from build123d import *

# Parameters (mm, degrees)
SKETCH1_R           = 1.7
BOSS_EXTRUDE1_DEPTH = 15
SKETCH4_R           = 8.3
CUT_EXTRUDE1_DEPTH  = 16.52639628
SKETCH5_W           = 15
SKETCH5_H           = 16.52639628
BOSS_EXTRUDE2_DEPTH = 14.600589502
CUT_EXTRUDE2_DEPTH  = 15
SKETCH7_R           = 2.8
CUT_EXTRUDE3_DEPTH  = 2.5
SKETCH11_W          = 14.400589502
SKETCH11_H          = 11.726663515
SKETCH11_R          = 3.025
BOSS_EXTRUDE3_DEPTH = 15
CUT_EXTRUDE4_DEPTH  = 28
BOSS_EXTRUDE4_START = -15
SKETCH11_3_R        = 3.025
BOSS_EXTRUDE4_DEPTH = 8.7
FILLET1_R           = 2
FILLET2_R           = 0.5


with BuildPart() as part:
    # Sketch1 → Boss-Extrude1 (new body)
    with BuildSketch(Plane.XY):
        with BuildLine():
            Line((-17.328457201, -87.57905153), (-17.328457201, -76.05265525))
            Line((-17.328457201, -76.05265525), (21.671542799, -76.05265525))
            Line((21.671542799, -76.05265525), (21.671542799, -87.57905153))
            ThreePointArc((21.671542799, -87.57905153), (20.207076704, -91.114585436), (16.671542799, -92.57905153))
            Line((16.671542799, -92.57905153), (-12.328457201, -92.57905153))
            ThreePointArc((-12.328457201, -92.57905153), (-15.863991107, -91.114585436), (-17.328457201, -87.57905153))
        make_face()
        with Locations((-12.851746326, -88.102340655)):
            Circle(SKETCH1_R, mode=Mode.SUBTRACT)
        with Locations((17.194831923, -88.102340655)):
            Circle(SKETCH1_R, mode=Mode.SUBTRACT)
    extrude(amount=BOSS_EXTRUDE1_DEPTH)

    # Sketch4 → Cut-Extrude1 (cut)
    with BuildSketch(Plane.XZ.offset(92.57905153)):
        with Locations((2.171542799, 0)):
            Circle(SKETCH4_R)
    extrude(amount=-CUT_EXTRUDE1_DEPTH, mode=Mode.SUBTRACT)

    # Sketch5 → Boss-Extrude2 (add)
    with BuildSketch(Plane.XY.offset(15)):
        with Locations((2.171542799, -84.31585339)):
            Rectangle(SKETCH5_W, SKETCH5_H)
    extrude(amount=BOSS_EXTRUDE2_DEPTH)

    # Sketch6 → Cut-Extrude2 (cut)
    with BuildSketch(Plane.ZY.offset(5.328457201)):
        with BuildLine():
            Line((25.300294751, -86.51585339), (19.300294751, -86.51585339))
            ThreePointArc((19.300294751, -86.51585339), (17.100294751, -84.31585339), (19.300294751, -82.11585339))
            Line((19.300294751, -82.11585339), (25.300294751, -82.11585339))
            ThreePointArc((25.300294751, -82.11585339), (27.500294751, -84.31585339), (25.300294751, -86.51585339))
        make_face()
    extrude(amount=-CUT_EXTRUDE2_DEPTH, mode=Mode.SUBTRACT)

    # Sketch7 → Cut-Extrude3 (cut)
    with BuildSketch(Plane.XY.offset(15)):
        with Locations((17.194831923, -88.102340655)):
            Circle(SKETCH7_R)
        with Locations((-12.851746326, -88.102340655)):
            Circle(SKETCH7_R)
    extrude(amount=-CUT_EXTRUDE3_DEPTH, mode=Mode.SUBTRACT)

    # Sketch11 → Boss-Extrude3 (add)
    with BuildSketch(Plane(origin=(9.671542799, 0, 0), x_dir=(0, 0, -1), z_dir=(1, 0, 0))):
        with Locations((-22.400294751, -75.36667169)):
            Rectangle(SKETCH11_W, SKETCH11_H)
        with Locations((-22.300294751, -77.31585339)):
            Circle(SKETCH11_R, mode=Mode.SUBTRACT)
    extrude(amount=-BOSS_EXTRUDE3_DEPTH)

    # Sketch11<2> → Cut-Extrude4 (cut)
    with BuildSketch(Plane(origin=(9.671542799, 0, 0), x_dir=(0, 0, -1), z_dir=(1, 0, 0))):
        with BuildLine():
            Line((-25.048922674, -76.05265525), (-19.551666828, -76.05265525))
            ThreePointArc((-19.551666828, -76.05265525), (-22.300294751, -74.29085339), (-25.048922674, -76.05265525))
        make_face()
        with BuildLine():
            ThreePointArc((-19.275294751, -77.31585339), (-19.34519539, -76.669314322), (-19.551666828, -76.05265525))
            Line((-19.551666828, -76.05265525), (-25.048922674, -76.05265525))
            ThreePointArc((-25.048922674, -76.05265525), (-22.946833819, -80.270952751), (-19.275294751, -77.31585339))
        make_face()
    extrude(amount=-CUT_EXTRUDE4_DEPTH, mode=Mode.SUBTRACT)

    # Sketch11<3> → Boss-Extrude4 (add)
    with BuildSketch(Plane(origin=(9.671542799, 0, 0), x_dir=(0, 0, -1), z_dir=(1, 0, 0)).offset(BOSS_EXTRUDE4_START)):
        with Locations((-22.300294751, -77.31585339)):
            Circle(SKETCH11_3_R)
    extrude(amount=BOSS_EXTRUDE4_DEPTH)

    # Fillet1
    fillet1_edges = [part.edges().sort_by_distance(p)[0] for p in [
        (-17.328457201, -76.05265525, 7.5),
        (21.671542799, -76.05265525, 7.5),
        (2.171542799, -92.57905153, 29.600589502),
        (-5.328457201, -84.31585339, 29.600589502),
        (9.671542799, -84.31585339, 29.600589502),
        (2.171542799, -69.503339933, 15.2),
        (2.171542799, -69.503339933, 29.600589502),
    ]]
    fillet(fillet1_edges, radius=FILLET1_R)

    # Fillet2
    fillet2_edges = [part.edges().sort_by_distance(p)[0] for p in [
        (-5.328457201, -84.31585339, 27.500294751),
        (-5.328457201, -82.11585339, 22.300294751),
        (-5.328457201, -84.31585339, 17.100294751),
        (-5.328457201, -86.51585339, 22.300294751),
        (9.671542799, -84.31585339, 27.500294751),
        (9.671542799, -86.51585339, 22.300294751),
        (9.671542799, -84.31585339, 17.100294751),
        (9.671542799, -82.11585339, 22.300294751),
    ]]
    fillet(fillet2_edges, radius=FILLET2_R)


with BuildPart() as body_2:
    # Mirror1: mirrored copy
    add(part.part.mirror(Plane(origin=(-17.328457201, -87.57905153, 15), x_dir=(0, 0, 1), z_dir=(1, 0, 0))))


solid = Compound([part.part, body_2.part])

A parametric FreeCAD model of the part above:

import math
import FreeCAD as App
import Part
import Sketcher
Q = App.Units.Quantity


def edges_at(feature, points):
    """Names of the edges that pass closest to the given points."""
    edges = feature.Shape.Edges
    near = lambda p: min(range(len(edges)), key=lambda i: edges[i].distToShape(Part.Vertex(*p))[0])
    return sorted({f"Edge{near(p) + 1}" for p in points})

doc = App.newDocument("Part")
body = doc.addObject("PartDesign::Body", "Body")

sketch1 = body.newObject("Sketcher::SketchObject", "Sketch")
sketch1.AttachmentSupport = (doc.getObject("XY_Plane"), [""])
sketch1.MapMode = "FlatFace"
sketch1.addGeometry([
    Part.LineSegment(App.Vector(-17.3, -76.1, 0), App.Vector(-17.3, -87.6, 0)),
    Part.ArcOfCircle(Part.Circle(App.Vector(-12.3, -87.6, 0), App.Vector(0, 0, 1), 5), math.radians(180), math.radians(270)),
    Part.LineSegment(App.Vector(-12.3, -92.6, 0), App.Vector(16.7, -92.6, 0)),
    Part.ArcOfCircle(Part.Circle(App.Vector(16.7, -87.6, 0), App.Vector(0, 0, 1), 5), math.radians(-90), math.radians(0)),
    Part.LineSegment(App.Vector(21.7, -87.6, 0), App.Vector(21.7, -76.1, 0)),
    Part.LineSegment(App.Vector(21.7, -76.1, 0), App.Vector(-17.3, -76.1, 0)),
    Part.Circle(App.Vector(17.2, -88.1, 0), App.Vector(0, 0, 1), 1.7),
    Part.Circle(App.Vector(-12.9, -88.1, 0), App.Vector(0, 0, 1), 1.7),
], False)
sketch1.addConstraint([
    Sketcher.Constraint("Tangent", 0, 2, 1, 1),
    Sketcher.Constraint("Tangent", 1, 2, 2, 1),
    Sketcher.Constraint("Tangent", 2, 2, 3, 1),
    Sketcher.Constraint("Tangent", 3, 2, 4, 1),
    Sketcher.Constraint("Coincident", 4, 2, 5, 1),
    Sketcher.Constraint("Coincident", 5, 2, 0, 1),
    Sketcher.Constraint("Vertical", 0),
    Sketcher.Constraint("Horizontal", 2),
    Sketcher.Constraint("Vertical", 4),
    Sketcher.Constraint("Horizontal", 5),
    Sketcher.Constraint("Equal", 1, 3),
    Sketcher.Constraint("Equal", 6, 7),
    Sketcher.Constraint("Horizontal", 6, 3, 7, 3),
    Sketcher.Constraint("Radius", 1, Q("5 mm")),
    Sketcher.Constraint("Diameter", 6, Q("3.4 mm")),
    Sketcher.Constraint("DistanceX", 2, 1, 2, 2, Q("29 mm")),
    Sketcher.Constraint("DistanceY", 0, 2, 0, 1, Q("11.526396 mm")),
    Sketcher.Constraint("DistanceY", 1, 3, -1, 1, Q("87.579052 mm")),
    Sketcher.Constraint("DistanceX", -1, 1, 6, 3, Q("17.194832 mm")),
    Sketcher.Constraint("DistanceY", 6, 3, -1, 1, Q("88.102341 mm")),
    Sketcher.Constraint("DistanceX", 3, 3, 6, 3, Q("0.523289 mm")),
    Sketcher.Constraint("DistanceX", 7, 3, 1, 3, Q("0.523289 mm")),
])
pad1 = body.newObject("PartDesign::Pad", "Pad")
pad1.Profile = sketch1
pad1.Length = 15

sketch2 = body.newObject("Sketcher::SketchObject", "Sketch001")
sketch2.AttachmentSupport = (doc.getObject("XZ_Plane"), [""])
sketch2.MapMode = "FlatFace"
sketch2.AttachmentOffset = App.Placement(App.Vector(0, 0, 92.579052), App.Rotation())
sketch2.addGeometry(Part.Circle(App.Vector(2, 0, 0), App.Vector(0, 0, 1), 8), False)
sketch2.addConstraint([
    Sketcher.Constraint("PointOnObject", 0, 3, -1),
    Sketcher.Constraint("Diameter", 0, Q("16.6 mm")),
    Sketcher.Constraint("DistanceX", -1, 1, 0, 3, Q("2.171543 mm")),
])
pocket1 = body.newObject("PartDesign::Pocket", "Pocket")
pocket1.Profile = sketch2
pocket1.Length = 16.526396

sketch3 = body.newObject("Sketcher::SketchObject", "Sketch002")
sketch3.AttachmentSupport = (doc.getObject("XY_Plane"), [""])
sketch3.MapMode = "FlatFace"
sketch3.AttachmentOffset = App.Placement(App.Vector(0, 0, 15), App.Rotation())
sketch3.addGeometry([
    Part.LineSegment(App.Vector(-5, -76, 0), App.Vector(-5, -93, 0)),
    Part.LineSegment(App.Vector(-5, -93, 0), App.Vector(10, -93, 0)),
    Part.LineSegment(App.Vector(10, -93, 0), App.Vector(10, -76, 0)),
    Part.LineSegment(App.Vector(10, -76, 0), App.Vector(-5, -76, 0)),
], False)
sketch3.addConstraint([
    Sketcher.Constraint("Coincident", 0, 2, 1, 1),
    Sketcher.Constraint("Coincident", 1, 2, 2, 1),
    Sketcher.Constraint("Coincident", 2, 2, 3, 1),
    Sketcher.Constraint("Coincident", 3, 2, 0, 1),
    Sketcher.Constraint("Vertical", 0),
    Sketcher.Constraint("Horizontal", 1),
    Sketcher.Constraint("Vertical", 2),
    Sketcher.Constraint("Horizontal", 3),
    Sketcher.Constraint("DistanceX", 1, 1, 1, 2, Q("15 mm")),
    Sketcher.Constraint("DistanceY", 0, 2, 0, 1, Q("16.526396 mm")),
    Sketcher.Constraint("DistanceY", 0, 2, -1, 1, Q("92.579052 mm")),
    Sketcher.Constraint("DistanceX", 0, 2, -1, 1, Q("5.328457 mm")),
])
pad2 = body.newObject("PartDesign::Pad", "Pad001")
pad2.Profile = sketch3
pad2.Length = 14.60059

sketch4 = body.newObject("Sketcher::SketchObject", "Sketch003")
sketch4.AttachmentSupport = (doc.getObject("YZ_Plane"), [""])
sketch4.MapMode = "FlatFace"
sketch4.AttachmentOffset = App.Placement(App.Vector(0, 0, -5.328457), App.Rotation())
sketch4.addGeometry([
    Part.LineSegment(App.Vector(-86.5, 19.3, 0), App.Vector(-86.5, 25.3, 0)),
    Part.ArcOfCircle(Part.Circle(App.Vector(-84.3, 25.3, 0), App.Vector(0, 0, 1), 2.2), math.radians(0), math.radians(180)),
    Part.LineSegment(App.Vector(-82.1, 25.3, 0), App.Vector(-82.1, 19.3, 0)),
    Part.ArcOfCircle(Part.Circle(App.Vector(-84.3, 19.3, 0), App.Vector(0, 0, 1), 2.2), math.radians(180), math.radians(360)),
], False)
sketch4.addConstraint([
    Sketcher.Constraint("Tangent", 0, 2, 1, 2),
    Sketcher.Constraint("Tangent", 1, 1, 2, 1),
    Sketcher.Constraint("Tangent", 2, 2, 3, 2),
    Sketcher.Constraint("Tangent", 3, 1, 0, 1),
    Sketcher.Constraint("Vertical", 0),
    Sketcher.Constraint("Vertical", 2),
    Sketcher.Constraint("Radius", 1, Q("2.2 mm")),
    Sketcher.Constraint("DistanceY", 0, 1, 0, 2, Q("6 mm")),
    Sketcher.Constraint("DistanceX", 1, 3, -1, 1, Q("84.315853 mm")),
    Sketcher.Constraint("DistanceY", -1, 1, 1, 3, Q("25.300295 mm")),
])
pocket2 = body.newObject("PartDesign::Pocket", "Pocket001")
pocket2.Profile = sketch4
pocket2.Length = 15
pocket2.Reversed = True

sketch5 = body.newObject("Sketcher::SketchObject", "Sketch004")
sketch5.AttachmentSupport = (doc.getObject("XY_Plane"), [""])
sketch5.MapMode = "FlatFace"
sketch5.AttachmentOffset = App.Placement(App.Vector(0, 0, 15), App.Rotation())
sketch5.addGeometry([
    Part.Circle(App.Vector(17.2, -88.1, 0), App.Vector(0, 0, 1), 2.8),
    Part.Circle(App.Vector(-12.9, -88.1, 0), App.Vector(0, 0, 1), 2.8),
], False)
sketch5.addConstraint([
    Sketcher.Constraint("Equal", 0, 1),
    Sketcher.Constraint("Horizontal", 0, 3, 1, 3),
    Sketcher.Constraint("Diameter", 0, Q("5.6 mm")),
    Sketcher.Constraint("DistanceX", -1, 1, 0, 3, Q("17.194832 mm")),
    Sketcher.Constraint("DistanceY", 0, 3, -1, 1, Q("88.102341 mm")),
    Sketcher.Constraint("DistanceX", 1, 3, 0, 3, Q("30.046578 mm")),
])
pocket3 = body.newObject("PartDesign::Pocket", "Pocket002")
pocket3.Profile = sketch5
pocket3.Length = 2.5

sketch6 = body.newObject("Sketcher::SketchObject", "Sketch005")
sketch6.AttachmentSupport = (doc.getObject("YZ_Plane"), [""])
sketch6.MapMode = "FlatFace"
sketch6.AttachmentOffset = App.Placement(App.Vector(0, 0, 9.671543), App.Rotation())
sketch6.addGeometry([
    Part.LineSegment(App.Vector(-69.5, 29.6, 0), App.Vector(-81.2, 29.6, 0)),
    Part.LineSegment(App.Vector(-81.2, 29.6, 0), App.Vector(-81.2, 15.2, 0)),
    Part.LineSegment(App.Vector(-81.2, 15.2, 0), App.Vector(-69.5, 15.2, 0)),
    Part.LineSegment(App.Vector(-69.5, 15.2, 0), App.Vector(-69.5, 29.6, 0)),
    Part.Circle(App.Vector(-77.3, 22.3, 0), App.Vector(0, 0, 1), 3),
], False)
sketch6.addConstraint([
    Sketcher.Constraint("Coincident", 0, 2, 1, 1),
    Sketcher.Constraint("Coincident", 1, 2, 2, 1),
    Sketcher.Constraint("Coincident", 2, 2, 3, 1),
    Sketcher.Constraint("Coincident", 3, 2, 0, 1),
    Sketcher.Constraint("Horizontal", 0),
    Sketcher.Constraint("Vertical", 1),
    Sketcher.Constraint("Horizontal", 2),
    Sketcher.Constraint("Vertical", 3),
    Sketcher.Constraint("Diameter", 4, Q("6.05 mm")),
    Sketcher.Constraint("DistanceY", -1, 1, 1, 2, Q("15.2 mm")),
    Sketcher.Constraint("DistanceY", 1, 2, 1, 1, Q("14.40059 mm")),
    Sketcher.Constraint("DistanceX", 0, 2, 0, 1, Q("11.726664 mm")),
    Sketcher.Constraint("DistanceX", 2, 2, -1, 1, Q("69.50334 mm")),
    Sketcher.Constraint("DistanceX", 0, 2, 4, 3, Q("3.91415 mm")),
    Sketcher.Constraint("DistanceY", -1, 1, 4, 3, Q("22.300295 mm")),
])
pad3 = body.newObject("PartDesign::Pad", "Pad002")
pad3.Profile = sketch6
pad3.Length = 15
pad3.Reversed = True

sketch7 = body.newObject("Sketcher::SketchObject", "Sketch006")
sketch7.AttachmentSupport = (doc.getObject("YZ_Plane"), [""])
sketch7.MapMode = "FlatFace"
sketch7.AttachmentOffset = App.Placement(App.Vector(0, 0, 9.671543), App.Rotation())
sketch7.addGeometry([
    Part.ArcOfCircle(Part.Circle(App.Vector(-77.3, 22.3, 0), App.Vector(0, 0, 1), 3), math.radians(-65), math.radians(65)),
    Part.ArcOfCircle(Part.Circle(App.Vector(-77.3, 22.3, 0), App.Vector(0, 0, 1), 3), math.radians(65), math.radians(270)),
    Part.ArcOfCircle(Part.Circle(App.Vector(-77.3, 22.3, 0), App.Vector(0, 0, 1), 3), math.radians(-90), math.radians(-65)),
], False)
sketch7.addConstraint([
    Sketcher.Constraint("Tangent", 0, 2, 1, 1),
    Sketcher.Constraint("Tangent", 1, 2, 2, 1),
    Sketcher.Constraint("Tangent", 2, 2, 0, 1),
    Sketcher.Constraint("Vertical", 2, 3, 1, 2),
    Sketcher.Constraint("Vertical", 0, 2, 2, 2),
    Sketcher.Constraint("Radius", 0, Q("3.025 mm")),
    Sketcher.Constraint("DistanceX", 2, 3, 0, 2, Q("1.263198 mm")),
    Sketcher.Constraint("DistanceX", 0, 3, -1, 1, Q("77.315853 mm")),
    Sketcher.Constraint("DistanceY", -1, 1, 0, 3, Q("22.300295 mm")),
])
pocket4 = body.newObject("PartDesign::Pocket", "Pocket003")
pocket4.Profile = sketch7
pocket4.Length = 28

sketch8 = body.newObject("Sketcher::SketchObject", "Sketch007")
sketch8.AttachmentSupport = (doc.getObject("YZ_Plane"), [""])
sketch8.MapMode = "FlatFace"
sketch8.AttachmentOffset = App.Placement(App.Vector(0, 0, -5.328457), App.Rotation())
sketch8.addGeometry(Part.Circle(App.Vector(-77.3, 22.3, 0), App.Vector(0, 0, 1), 3), False)
sketch8.addConstraint([
    Sketcher.Constraint("Diameter", 0, Q("6.05 mm")),
    Sketcher.Constraint("DistanceX", 0, 3, -1, 1, Q("77.315853 mm")),
    Sketcher.Constraint("DistanceY", -1, 1, 0, 3, Q("22.300295 mm")),
])
pad4 = body.newObject("PartDesign::Pad", "Pad003")
pad4.Profile = sketch8
pad4.Length = 8.7
doc.recompute()

fillet = body.newObject("PartDesign::Fillet", "Fillet")
fillet.Base = (pad4, edges_at(pad4, [
    (-17.328, -76.053, 7.5),
    (21.672, -76.053, 7.5),
    (2.172, -92.579, 29.601),
    (-5.328, -81.041, 29.601),
    (9.672, -81.041, 29.601),
    (2.172, -69.503, 15.2),
    (2.172, -69.503, 29.601),
]))
fillet.Radius = 2
doc.recompute()

fillet2 = body.newObject("PartDesign::Fillet", "Fillet001")
fillet2.Base = (fillet, edges_at(fillet, [
    (-5.328, -84.316, 27.5),
    (-5.328, -82.116, 22.3),
    (-5.328, -84.316, 17.1),
    (-5.328, -86.516, 22.3),
    (9.672, -84.316, 27.5),
    (9.672, -86.516, 22.3),
    (9.672, -84.316, 17.1),
    (9.672, -82.116, 22.3),
]))
fillet2.Radius = 0.5
body2 = doc.addObject("PartDesign::Body", "Body001")
doc.recompute()

mirroring = doc.addObject("Part::Mirroring", "Mirroring")
mirroring.Source = body
mirroring.Base = App.Vector(-17.328457, -87.579052, 15)
mirroring.Normal = App.Vector(1, 0, 0)
body2.BaseFeature = mirroring
doc.recompute()
mirroring.Visibility = False

doc.recompute()
